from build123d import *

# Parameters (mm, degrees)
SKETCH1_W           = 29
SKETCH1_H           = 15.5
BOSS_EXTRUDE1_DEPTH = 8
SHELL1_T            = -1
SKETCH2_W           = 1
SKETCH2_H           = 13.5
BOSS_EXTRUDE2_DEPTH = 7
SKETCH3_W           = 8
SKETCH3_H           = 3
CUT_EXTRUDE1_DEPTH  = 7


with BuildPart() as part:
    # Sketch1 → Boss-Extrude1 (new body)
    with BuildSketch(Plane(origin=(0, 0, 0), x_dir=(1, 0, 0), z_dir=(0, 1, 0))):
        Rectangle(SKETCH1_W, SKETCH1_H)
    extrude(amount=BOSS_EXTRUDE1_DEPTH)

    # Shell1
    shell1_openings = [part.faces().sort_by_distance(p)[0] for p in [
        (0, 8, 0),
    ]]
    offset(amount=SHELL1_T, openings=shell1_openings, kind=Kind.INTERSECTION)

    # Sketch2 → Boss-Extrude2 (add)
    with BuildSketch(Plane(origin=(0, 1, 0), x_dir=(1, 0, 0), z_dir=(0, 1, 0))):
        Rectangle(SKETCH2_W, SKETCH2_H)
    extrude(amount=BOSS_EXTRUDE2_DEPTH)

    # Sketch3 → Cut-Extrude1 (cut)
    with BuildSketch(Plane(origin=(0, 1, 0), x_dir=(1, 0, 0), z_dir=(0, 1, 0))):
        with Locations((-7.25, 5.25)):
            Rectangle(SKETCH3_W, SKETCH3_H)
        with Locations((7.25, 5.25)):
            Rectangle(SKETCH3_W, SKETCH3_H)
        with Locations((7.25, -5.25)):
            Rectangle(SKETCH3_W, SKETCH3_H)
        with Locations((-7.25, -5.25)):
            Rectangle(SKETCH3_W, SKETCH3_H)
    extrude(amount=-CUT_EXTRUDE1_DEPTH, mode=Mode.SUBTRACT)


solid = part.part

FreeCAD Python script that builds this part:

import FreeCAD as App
import Part
import Sketcher

V = App.Vector
Q = App.Units.Quantity


def faces_at(feature, points):
    """Names of the faces that lie closest to the given points."""
    faces = feature.Shape.Faces
    near = lambda p: min(range(len(faces)), key=lambda i: faces[i].distToShape(Part.Vertex(*p))[0])
    return sorted({f"Face{near(p) + 1}" for p in points})


def add_polygon(sketch, points):
    """Adds a closed chain of lines whose ends are joined by coincident constraints."""
    first, n = sketch.GeometryCount, len(points)
    for a, b in zip(points, points[1:] + points[:1]):
        sketch.addGeometry(Part.LineSegment(App.Vector(*a, 0), App.Vector(*b, 0)), False)
    for i in range(n):
        sketch.addConstraint(Sketcher.Constraint("Coincident", first + i, 2, first + (i + 1) % n, 1))

doc = App.newDocument("Part")
body = doc.addObject("PartDesign::Body", "Body")

# Sketch on XZ plane
sketch1 = body.newObject("Sketcher::SketchObject", "Sketch")
sketch1.AttachmentSupport = (doc.getObject("XZ_Plane"), [""])
sketch1.MapMode = "FlatFace"
add_polygon(sketch1, [(-14, -8), (-14, 8), (14, 8), (14, -8)])  # lines 0-3
sketch1.addConstraint([
    Sketcher.Constraint("Vertical", 0),
    Sketcher.Constraint("Horizontal", 1),
    Sketcher.Constraint("Vertical", 2),
    Sketcher.Constraint("Horizontal", 3),
    Sketcher.Constraint("Symmetric", 0, 2, 2, 2, -1, 1),
    Sketcher.Constraint("DistanceX", 1, 1, 1, 2, Q("29 mm")),
    Sketcher.Constraint("DistanceY", 0, 1, 0, 2, Q("15.5 mm")),
])
pad1 = body.newObject("PartDesign::Pad", "Pad")
pad1.Profile = sketch1
pad1.Length = 8
pad1.Reversed = True
doc.recompute()

thickness = body.newObject("PartDesign::Thickness", "Thickness")
thickness.Base = (pad1, faces_at(pad1, [(0, 8, 0)]))
thickness.Value = 1
thickness.Reversed = True
thickness.Join = "Intersection"

# Sketch on XZ plane
sketch2 = body.newObject("Sketcher::SketchObject", "Sketch001")
sketch2.AttachmentSupport = (doc.getObject("XZ_Plane"), [""])
sketch2.MapMode = "FlatFace"
sketch2.AttachmentOffset = App.Placement(V(0, 0, -1), App.Rotation())
add_polygon(sketch2, [(-0.5, -6.8), (-0.5, 6.8), (0.5, 6.8), (0.5, -6.8)])  # lines 0-3
sketch2.addConstraint([
    Sketcher.Constraint("Vertical", 0),
    Sketcher.Constraint("Horizontal", 1),
    Sketcher.Constraint("Vertical", 2),
    Sketcher.Constraint("Horizontal", 3),
    Sketcher.Constraint("Symmetric", 0, 2, 2, 2, -1, 1),
    Sketcher.Constraint("DistanceX", 1, 1, 1, 2, Q("1 mm")),
    Sketcher.Constraint("DistanceY", 0, 1, 0, 2, Q("13.5 mm")),
])
pad2 = body.newObject("PartDesign::Pad", "Pad001")
pad2.Profile = sketch2
pad2.Length = 7
pad2.Reversed = True

# Sketch on XZ plane
sketch3 = body.newObject("Sketcher::SketchObject", "Sketch002")
sketch3.AttachmentSupport = (doc.getObject("XZ_Plane"), [""])
sketch3.MapMode = "FlatFace"
sketch3.AttachmentOffset = App.Placement(V(0, 0, -1), App.Rotation())
add_polygon(sketch3, [(-11.2, -6.8), (-11.2, -3.8), (-3.2, -3.8), (-3.2, -6.8)])  # lines 0-3
add_polygon(sketch3, [(3.2, -6.8), (3.2, -3.8), (11.2, -3.8), (11.2, -6.8)])  # lines 4-7
add_polygon(sketch3, [(3.2, 3.8), (3.2, 6.8), (11.2, 6.8), (11.2, 3.8)])  # lines 8-11
add_polygon(sketch3, [(-11.2, 3.8), (-11.2, 6.8), (-3.2, 6.8), (-3.2, 3.8)])  # lines 12-15
sketch3.addConstraint([
    Sketcher.Constraint("Vertical", 0),
    Sketcher.Constraint("Horizontal", 1),
    Sketcher.Constraint("Vertical", 2),
    Sketcher.Constraint("Horizontal", 3),
    Sketcher.Constraint("Vertical", 4),
    Sketcher.Constraint("Horizontal", 5),
    Sketcher.Constraint("Vertical", 6),
    Sketcher.Constraint("Horizontal", 7),
    Sketcher.Constraint("Vertical", 8),
    Sketcher.Constraint("Horizontal", 9),
    Sketcher.Constraint("Vertical", 10),
    Sketcher.Constraint("Horizontal", 11),
    Sketcher.Constraint("Vertical", 12),
    Sketcher.Constraint("Horizontal", 13),
    Sketcher.Constraint("Vertical", 14),
    Sketcher.Constraint("Horizontal", 15),
    Sketcher.Constraint("Symmetric", 2, 2, 8, 2, -1, 1),
    Sketcher.Constraint("Symmetric", 0, 2, 10, 2, -1, 1),
    Sketcher.Constraint("Symmetric", 6, 2, 12, 2, -1, 1),
    Sketcher.Constraint("Symmetric", 4, 2, 14, 2, -1, 1),
    Sketcher.Constraint("Symmetric", 1, 2, 4, 2, -2),
    Sketcher.Constraint("Symmetric", 3, 2, 6, 2, -2),
    Sketcher.Constraint("DistanceX", 1, 1, 1, 2, Q("8 mm")),
    Sketcher.Constraint("DistanceY", 0, 1, 0, 2, Q("3 mm")),
    Sketcher.Constraint("DistanceX", 1, 2, 4, 2, Q("6.5 mm")),
    Sketcher.Constraint("DistanceY", 4, 2, 8, 2, Q("10.5 mm")),
])
pocket1 = body.newObject("PartDesign::Pocket", "Pocket")
pocket1.Profile = sketch3
pocket1.Length = 7
pocket1.Reversed = True

doc.recompute()
